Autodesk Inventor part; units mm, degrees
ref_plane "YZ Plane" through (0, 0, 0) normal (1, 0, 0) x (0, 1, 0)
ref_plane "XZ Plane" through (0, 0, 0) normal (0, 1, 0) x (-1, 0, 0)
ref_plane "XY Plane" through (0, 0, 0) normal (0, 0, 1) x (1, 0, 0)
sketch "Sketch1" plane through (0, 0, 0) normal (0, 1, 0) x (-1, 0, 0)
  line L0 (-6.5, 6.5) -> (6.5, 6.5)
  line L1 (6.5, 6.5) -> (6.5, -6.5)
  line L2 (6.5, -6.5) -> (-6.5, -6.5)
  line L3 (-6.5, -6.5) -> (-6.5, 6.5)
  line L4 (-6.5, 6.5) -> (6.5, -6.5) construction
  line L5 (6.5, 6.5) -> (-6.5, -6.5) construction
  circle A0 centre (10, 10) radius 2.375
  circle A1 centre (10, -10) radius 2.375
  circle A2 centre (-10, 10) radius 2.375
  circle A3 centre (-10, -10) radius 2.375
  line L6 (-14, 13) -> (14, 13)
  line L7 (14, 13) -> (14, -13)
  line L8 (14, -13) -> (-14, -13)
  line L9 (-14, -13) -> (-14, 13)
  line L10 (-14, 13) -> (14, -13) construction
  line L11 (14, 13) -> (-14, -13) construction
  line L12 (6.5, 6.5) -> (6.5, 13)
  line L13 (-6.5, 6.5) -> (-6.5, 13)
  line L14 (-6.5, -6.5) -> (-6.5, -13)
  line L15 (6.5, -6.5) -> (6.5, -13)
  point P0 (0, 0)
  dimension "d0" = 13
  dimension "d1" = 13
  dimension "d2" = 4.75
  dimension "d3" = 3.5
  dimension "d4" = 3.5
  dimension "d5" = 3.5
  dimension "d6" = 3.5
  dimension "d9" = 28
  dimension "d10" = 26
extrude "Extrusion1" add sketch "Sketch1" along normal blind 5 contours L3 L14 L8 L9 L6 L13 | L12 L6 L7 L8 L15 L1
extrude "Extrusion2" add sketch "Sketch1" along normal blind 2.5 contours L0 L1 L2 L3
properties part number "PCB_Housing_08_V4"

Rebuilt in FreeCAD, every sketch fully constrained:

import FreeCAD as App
import Part
import Sketcher
from FreeCAD import Vector
Q = App.Units.Quantity

doc = App.newDocument("Part")
body = doc.addObject("PartDesign::Body", "Body")
body.AllowCompound = True

# Sketch on XZ plane
sketch1 = body.newObject("Sketcher::SketchObject", "Sketch")
sketch1.AttachmentSupport = (doc.getObject("XZ_Plane"), [""])
sketch1.MapMode = "FlatFace"
sketch1.addGeometry([
    Part.LineSegment(Vector(6.5, -13, 0), Vector(6.5, 13, 0)),  # 0
    Part.LineSegment(Vector(6.5, 13, 0), Vector(14, 13, 0)),  # 1
    Part.LineSegment(Vector(14, 13, 0), Vector(14, -13, 0)),  # 2
    Part.LineSegment(Vector(14, -13, 0), Vector(6.5, -13, 0)),  # 3
    Part.Circle(Vector(10, -10, 0), Vector(0, 0, 1), 2.4),  # 4
    Part.Circle(Vector(10, 10, 0), Vector(0, 0, 1), 2.4),  # 5
    Part.LineSegment(Vector(-6.5, 13, 0), Vector(-6.5, -13, 0)),  # 6
    Part.LineSegment(Vector(-6.5, -13, 0), Vector(-14, -13, 0)),  # 7
    Part.LineSegment(Vector(-14, -13, 0), Vector(-14, 13, 0)),  # 8
    Part.LineSegment(Vector(-14, 13, 0), Vector(-6.5, 13, 0)),  # 9
    Part.Circle(Vector(-10, -10, 0), Vector(0, 0, 1), 2.4),  # 10
    Part.Circle(Vector(-10, 10, 0), Vector(0, 0, 1), 2.4),  # 11
], False)
sketch1.addConstraint([
    Sketcher.Constraint("Coincident", 0, 2, 1, 1),
    Sketcher.Constraint("Coincident", 1, 2, 2, 1),
    Sketcher.Constraint("Coincident", 2, 2, 3, 1),
    Sketcher.Constraint("Coincident", 3, 2, 0, 1),
    Sketcher.Constraint("Coincident", 6, 2, 7, 1),
    Sketcher.Constraint("Coincident", 7, 2, 8, 1),
    Sketcher.Constraint("Coincident", 8, 2, 9, 1),
    Sketcher.Constraint("Coincident", 9, 2, 6, 1),
    Sketcher.Constraint("Vertical", 0),
    Sketcher.Constraint("Horizontal", 1),
    Sketcher.Constraint("Vertical", 2),
    Sketcher.Constraint("Horizontal", 3),
    Sketcher.Constraint("Vertical", 6),
    Sketcher.Constraint("Horizontal", 7),
    Sketcher.Constraint("Vertical", 8),
    Sketcher.Constraint("Horizontal", 9),
    Sketcher.Constraint("Equal", 4, 5),
    Sketcher.Constraint("Equal", 5, 10),
    Sketcher.Constraint("Equal", 10, 11),
    Sketcher.Constraint("Symmetric", 5, 3, 10, 3, -1, 1),
    Sketcher.Constraint("Symmetric", 4, 3, 11, 3, -1, 1),
    Sketcher.Constraint("Symmetric", 0, 2, 6, 2, -1, 1),
    Sketcher.Constraint("Symmetric", 2, 2, 8, 2, -1, 1),
    Sketcher.Constraint("Symmetric", 4, 3, 10, 3, -2),
    Sketcher.Constraint("Horizontal", 3, 2, 6, 2),
    Sketcher.Constraint("Diameter", 4, Q("4.75 mm")),
    Sketcher.Constraint("DistanceY", 0, 1, 0, 2, Q("26 mm")),
    Sketcher.Constraint("DistanceX", 6, 2, 3, 2, Q("13 mm")),
    Sketcher.Constraint("DistanceX", 0, 2, 5, 3, Q("3.5 mm")),
    Sketcher.Constraint("DistanceX", 1, 1, 1, 2, Q("7.5 mm")),
    Sketcher.Constraint("DistanceY", 4, 3, -1, 1, Q("10 mm")),
])
pad1 = body.newObject("PartDesign::Pad", "Pad")
pad1.Profile = sketch1
pad1.Length = 5
pad1.Reversed = True

# Sketch on XZ plane
sketch2 = body.newObject("Sketcher::SketchObject", "Sketch001")
sketch2.AttachmentSupport = (doc.getObject("XZ_Plane"), [""])
sketch2.MapMode = "FlatFace"
sketch2.addGeometry([
    Part.LineSegment(Vector(-6, 6, 0), Vector(6, 6, 0)),
    Part.LineSegment(Vector(6, 6, 0), Vector(6, -6, 0)),
    Part.LineSegment(Vector(6, -6, 0), Vector(-6, -6, 0)),
    Part.LineSegment(Vector(-6, -6, 0), Vector(-6, 6, 0)),
], False)
sketch2.addConstraint([
    Sketcher.Constraint("Coincident", 0, 2, 1, 1),
    Sketcher.Constraint("Coincident", 1, 2, 2, 1),
    Sketcher.Constraint("Coincident", 2, 2, 3, 1),
    Sketcher.Constraint("Coincident", 3, 2, 0, 1),
    Sketcher.Constraint("Horizontal", 0),
    Sketcher.Constraint("Vertical", 1),
    Sketcher.Constraint("Horizontal", 2),
    Sketcher.Constraint("Vertical", 3),
    Sketcher.Constraint("Symmetric", 0, 2, 2, 2, -1, 1),
    Sketcher.Constraint("Equal", 2, 1),
    Sketcher.Constraint("DistanceX", 0, 1, 0, 2, Q("13 mm")),
])
pad2 = body.newObject("PartDesign::Pad", "Pad001")
pad2.Profile = sketch2
pad2.Length = 2.5
pad2.Reversed = True

doc.recompute()
